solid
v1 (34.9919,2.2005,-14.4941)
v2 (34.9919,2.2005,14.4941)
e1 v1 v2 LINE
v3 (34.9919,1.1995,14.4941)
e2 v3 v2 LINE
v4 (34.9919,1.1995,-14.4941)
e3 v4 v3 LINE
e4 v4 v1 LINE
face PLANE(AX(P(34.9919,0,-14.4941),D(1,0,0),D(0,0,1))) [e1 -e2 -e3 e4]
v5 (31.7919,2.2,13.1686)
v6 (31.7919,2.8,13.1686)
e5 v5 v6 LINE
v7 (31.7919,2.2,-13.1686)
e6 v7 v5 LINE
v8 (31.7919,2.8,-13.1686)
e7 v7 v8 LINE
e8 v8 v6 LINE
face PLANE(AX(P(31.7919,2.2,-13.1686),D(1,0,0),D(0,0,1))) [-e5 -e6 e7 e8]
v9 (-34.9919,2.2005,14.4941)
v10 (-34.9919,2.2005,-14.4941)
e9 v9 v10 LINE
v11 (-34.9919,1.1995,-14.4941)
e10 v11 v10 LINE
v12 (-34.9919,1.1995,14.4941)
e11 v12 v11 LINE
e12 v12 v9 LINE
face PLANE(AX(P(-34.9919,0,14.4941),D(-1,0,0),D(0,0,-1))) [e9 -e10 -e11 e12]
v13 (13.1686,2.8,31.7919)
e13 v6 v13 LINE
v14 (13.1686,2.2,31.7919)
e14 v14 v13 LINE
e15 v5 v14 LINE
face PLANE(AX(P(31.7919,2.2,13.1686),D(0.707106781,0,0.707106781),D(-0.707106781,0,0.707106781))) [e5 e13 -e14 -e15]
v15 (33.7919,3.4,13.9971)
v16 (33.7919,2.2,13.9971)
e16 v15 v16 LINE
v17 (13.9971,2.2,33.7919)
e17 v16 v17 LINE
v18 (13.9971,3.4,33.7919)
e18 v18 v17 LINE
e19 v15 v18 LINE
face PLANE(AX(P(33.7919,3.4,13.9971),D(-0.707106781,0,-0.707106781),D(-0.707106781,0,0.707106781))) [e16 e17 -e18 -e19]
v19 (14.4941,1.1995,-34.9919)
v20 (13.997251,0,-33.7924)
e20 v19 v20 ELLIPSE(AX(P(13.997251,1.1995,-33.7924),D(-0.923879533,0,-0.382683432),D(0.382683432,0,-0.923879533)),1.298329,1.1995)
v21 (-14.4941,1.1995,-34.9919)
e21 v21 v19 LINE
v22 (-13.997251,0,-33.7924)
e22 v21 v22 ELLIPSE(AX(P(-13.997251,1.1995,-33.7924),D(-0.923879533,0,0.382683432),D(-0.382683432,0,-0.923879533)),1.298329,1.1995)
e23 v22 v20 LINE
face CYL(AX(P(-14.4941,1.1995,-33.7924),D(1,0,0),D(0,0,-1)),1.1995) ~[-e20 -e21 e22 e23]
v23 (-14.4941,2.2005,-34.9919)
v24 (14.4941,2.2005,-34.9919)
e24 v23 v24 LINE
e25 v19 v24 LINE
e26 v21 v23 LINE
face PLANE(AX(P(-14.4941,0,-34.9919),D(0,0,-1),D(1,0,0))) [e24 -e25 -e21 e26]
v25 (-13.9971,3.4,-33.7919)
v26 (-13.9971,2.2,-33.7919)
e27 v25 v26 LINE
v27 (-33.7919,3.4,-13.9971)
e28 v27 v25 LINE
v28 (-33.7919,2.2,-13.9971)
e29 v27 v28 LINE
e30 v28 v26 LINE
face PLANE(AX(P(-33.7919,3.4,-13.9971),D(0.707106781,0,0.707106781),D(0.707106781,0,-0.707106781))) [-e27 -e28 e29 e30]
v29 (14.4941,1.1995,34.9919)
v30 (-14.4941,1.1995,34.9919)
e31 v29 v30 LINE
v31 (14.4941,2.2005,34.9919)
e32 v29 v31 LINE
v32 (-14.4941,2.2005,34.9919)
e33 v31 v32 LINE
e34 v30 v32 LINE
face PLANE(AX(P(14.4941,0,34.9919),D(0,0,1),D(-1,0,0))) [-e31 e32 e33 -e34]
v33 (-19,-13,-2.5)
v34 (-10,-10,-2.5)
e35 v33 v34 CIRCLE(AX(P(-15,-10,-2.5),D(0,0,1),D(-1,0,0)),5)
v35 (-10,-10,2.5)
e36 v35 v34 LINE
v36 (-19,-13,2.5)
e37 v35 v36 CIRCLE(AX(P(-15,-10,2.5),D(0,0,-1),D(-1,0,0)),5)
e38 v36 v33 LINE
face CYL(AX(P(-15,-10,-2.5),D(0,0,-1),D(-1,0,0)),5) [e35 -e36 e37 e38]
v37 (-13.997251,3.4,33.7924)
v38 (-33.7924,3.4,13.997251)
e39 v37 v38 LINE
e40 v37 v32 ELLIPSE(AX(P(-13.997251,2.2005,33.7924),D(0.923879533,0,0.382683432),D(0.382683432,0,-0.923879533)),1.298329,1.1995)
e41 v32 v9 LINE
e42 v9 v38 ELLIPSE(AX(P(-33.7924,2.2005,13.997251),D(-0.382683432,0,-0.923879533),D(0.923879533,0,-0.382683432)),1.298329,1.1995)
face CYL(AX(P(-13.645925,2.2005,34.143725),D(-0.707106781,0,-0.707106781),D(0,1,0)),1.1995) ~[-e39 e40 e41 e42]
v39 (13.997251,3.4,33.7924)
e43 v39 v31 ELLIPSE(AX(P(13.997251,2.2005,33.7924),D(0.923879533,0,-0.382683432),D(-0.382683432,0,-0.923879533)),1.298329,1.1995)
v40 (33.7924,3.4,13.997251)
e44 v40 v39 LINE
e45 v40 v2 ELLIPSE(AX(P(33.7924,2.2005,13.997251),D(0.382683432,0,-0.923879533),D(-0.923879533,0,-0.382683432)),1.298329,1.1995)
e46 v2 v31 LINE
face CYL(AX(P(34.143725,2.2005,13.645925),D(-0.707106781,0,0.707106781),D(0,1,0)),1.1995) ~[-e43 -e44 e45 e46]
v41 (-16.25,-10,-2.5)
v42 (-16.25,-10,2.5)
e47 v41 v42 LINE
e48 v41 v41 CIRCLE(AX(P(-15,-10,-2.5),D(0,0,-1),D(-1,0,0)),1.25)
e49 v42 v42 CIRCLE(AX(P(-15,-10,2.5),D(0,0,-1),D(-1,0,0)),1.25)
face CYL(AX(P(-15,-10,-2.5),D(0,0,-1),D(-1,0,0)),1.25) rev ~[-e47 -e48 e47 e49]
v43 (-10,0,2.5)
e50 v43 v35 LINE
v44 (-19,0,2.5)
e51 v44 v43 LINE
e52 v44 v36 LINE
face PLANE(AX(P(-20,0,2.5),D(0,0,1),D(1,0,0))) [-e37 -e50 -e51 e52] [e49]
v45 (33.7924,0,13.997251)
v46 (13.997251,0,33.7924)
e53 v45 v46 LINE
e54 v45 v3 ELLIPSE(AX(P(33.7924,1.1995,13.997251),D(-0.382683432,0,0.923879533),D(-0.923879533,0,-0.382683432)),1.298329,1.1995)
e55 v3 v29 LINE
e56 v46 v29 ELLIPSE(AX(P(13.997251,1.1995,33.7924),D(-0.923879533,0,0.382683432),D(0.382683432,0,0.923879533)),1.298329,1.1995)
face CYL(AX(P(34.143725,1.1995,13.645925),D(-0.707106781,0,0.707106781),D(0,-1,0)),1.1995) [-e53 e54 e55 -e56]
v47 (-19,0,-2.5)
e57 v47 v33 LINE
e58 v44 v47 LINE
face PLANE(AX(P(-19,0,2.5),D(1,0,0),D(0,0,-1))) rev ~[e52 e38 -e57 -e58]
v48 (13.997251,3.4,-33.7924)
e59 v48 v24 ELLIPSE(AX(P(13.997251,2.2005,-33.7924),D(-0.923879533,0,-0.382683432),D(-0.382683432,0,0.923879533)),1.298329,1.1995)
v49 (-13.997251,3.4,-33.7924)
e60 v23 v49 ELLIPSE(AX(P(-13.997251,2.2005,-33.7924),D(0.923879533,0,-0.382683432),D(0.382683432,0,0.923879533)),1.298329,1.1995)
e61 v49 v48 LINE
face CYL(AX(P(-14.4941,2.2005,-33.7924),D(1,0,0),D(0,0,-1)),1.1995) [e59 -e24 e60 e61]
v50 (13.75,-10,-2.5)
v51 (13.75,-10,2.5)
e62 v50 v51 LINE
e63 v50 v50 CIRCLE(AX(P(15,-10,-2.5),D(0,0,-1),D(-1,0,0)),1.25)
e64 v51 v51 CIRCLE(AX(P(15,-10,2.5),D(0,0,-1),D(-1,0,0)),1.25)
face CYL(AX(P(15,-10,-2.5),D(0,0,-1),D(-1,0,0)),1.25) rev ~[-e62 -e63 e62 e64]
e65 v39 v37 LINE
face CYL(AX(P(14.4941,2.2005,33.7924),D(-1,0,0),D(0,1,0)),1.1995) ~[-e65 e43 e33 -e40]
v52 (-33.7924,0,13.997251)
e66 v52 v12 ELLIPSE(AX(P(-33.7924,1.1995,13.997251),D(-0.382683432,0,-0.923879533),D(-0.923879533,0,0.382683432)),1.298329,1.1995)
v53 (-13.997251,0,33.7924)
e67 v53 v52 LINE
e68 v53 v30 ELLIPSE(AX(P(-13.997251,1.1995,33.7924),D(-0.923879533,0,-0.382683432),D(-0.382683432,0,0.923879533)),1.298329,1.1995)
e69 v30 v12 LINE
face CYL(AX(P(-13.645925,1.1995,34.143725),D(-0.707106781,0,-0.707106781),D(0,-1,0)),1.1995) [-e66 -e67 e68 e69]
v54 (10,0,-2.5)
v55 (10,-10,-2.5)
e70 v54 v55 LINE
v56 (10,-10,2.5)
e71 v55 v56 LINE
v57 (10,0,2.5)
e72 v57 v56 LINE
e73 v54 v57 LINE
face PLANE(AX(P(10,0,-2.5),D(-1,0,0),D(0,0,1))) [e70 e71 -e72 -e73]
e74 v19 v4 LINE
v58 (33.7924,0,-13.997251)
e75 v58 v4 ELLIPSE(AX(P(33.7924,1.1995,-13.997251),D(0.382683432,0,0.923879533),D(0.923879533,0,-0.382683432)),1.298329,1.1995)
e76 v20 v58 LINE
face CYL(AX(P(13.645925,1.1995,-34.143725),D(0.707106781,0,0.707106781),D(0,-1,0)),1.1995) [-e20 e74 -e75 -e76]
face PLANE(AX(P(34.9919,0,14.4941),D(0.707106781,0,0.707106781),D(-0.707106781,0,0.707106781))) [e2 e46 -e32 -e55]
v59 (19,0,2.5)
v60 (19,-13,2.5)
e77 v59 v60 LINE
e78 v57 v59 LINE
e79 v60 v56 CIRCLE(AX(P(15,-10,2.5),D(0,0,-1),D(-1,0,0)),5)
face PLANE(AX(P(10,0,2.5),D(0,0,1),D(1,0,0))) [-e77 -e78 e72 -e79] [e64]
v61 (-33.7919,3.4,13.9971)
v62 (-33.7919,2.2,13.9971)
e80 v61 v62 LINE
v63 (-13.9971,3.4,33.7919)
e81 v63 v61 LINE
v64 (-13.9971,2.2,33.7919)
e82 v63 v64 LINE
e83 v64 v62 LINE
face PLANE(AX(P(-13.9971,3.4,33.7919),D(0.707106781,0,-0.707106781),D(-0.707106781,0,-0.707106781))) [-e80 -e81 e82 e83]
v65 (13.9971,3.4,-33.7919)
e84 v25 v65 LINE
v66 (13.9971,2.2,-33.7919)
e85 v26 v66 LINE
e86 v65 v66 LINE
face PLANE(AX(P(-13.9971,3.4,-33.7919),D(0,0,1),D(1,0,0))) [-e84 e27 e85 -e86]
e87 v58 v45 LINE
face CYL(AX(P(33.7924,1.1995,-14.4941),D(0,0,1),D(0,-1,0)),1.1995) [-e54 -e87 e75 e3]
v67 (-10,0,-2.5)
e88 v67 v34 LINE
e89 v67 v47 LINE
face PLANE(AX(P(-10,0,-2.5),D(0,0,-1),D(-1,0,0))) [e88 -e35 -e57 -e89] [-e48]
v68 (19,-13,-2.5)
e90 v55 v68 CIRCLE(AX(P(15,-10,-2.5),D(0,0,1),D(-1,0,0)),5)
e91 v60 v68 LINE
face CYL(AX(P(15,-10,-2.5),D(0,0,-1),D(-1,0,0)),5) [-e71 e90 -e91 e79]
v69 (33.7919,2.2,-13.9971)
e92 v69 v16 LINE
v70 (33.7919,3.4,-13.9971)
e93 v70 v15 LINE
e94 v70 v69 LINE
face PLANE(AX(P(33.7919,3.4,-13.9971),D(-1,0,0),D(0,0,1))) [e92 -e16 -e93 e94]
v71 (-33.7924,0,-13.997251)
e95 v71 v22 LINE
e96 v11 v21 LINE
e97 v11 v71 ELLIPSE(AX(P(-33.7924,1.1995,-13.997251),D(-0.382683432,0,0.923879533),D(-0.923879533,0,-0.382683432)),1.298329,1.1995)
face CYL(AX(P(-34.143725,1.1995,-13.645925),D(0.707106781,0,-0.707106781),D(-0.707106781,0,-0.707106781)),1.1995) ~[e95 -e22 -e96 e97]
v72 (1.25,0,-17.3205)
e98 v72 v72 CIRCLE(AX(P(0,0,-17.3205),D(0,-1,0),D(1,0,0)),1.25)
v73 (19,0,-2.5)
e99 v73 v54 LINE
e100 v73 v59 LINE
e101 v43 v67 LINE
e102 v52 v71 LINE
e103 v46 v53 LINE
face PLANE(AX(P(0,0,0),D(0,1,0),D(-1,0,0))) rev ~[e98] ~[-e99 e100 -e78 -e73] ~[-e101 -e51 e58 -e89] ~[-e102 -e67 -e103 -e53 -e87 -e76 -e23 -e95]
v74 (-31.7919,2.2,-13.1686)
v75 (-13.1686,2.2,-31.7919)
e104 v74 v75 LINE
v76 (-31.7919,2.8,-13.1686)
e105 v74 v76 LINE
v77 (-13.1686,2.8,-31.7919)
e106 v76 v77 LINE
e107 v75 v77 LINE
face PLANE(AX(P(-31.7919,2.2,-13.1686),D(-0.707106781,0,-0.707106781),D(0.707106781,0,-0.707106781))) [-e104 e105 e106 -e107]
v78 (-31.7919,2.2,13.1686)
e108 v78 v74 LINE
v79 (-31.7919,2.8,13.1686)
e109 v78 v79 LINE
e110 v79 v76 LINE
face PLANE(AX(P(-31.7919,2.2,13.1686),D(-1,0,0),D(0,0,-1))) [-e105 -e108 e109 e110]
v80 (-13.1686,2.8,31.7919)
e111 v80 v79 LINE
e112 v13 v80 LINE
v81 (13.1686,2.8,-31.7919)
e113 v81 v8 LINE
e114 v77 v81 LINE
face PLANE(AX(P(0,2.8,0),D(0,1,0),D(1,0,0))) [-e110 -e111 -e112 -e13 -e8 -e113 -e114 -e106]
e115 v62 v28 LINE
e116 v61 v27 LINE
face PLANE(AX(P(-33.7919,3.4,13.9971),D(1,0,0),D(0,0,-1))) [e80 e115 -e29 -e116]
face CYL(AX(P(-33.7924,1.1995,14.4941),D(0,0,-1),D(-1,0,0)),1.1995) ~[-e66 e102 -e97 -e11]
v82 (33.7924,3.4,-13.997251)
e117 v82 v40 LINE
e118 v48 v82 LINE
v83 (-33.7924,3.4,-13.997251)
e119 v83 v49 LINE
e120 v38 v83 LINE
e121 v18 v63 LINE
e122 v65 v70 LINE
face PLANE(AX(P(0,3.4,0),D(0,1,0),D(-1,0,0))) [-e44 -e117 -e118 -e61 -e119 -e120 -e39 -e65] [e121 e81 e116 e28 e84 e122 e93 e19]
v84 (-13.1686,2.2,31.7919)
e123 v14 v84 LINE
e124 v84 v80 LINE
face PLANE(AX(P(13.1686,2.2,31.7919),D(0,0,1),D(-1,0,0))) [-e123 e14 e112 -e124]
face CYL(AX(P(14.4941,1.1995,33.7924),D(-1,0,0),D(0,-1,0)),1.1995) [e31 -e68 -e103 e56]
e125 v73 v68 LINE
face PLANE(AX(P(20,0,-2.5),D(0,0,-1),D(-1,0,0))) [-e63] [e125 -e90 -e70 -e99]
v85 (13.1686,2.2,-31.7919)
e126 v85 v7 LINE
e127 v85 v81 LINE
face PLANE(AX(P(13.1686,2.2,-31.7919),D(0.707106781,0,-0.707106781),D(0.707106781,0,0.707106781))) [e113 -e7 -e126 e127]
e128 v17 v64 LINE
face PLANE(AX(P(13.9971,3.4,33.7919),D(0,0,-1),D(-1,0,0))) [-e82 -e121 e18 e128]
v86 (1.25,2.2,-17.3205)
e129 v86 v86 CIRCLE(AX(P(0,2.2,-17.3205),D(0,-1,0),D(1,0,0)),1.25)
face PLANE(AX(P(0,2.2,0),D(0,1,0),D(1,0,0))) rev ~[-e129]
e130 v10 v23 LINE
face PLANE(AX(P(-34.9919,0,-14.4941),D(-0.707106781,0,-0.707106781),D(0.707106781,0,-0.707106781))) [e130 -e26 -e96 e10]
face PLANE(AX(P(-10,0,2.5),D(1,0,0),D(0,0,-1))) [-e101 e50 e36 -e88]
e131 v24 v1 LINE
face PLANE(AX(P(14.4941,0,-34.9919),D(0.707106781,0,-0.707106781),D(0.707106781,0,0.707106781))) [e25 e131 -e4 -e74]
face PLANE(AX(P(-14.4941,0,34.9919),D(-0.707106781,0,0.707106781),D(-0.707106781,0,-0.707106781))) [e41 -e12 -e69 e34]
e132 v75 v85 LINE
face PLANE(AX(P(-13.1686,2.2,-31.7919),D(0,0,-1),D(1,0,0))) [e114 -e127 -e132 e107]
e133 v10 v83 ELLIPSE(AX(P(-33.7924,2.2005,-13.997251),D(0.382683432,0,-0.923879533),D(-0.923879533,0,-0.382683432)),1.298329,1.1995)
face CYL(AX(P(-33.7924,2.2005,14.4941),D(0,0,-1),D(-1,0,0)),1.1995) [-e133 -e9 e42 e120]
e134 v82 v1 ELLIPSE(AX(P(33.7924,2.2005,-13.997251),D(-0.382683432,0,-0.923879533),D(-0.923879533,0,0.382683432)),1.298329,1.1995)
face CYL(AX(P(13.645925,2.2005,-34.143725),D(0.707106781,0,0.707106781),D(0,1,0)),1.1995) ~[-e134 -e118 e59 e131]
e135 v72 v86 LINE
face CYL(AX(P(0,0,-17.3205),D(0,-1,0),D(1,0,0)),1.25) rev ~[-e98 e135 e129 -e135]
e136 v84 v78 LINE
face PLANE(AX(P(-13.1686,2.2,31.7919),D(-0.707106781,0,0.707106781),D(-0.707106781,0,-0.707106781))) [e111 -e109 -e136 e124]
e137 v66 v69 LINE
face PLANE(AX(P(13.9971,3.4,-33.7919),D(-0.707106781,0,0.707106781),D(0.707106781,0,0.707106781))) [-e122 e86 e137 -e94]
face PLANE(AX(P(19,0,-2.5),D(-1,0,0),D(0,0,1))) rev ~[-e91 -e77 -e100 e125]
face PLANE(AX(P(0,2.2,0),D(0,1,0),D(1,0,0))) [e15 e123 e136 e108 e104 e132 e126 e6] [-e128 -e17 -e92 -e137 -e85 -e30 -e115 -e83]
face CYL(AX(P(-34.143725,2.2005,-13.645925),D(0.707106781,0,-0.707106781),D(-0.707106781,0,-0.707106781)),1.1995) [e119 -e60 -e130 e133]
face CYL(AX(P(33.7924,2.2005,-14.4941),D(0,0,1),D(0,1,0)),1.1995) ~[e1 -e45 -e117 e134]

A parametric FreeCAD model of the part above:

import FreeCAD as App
import Part
import Sketcher

V = App.Vector


def edges_at(feature, points):
    """Names of the edges that pass closest to the given points."""
    edges = feature.Shape.Edges
    near = lambda p: min(range(len(edges)), key=lambda i: edges[i].distToShape(Part.Vertex(*p))[0])
    return sorted({f"Edge{near(p) + 1}" for p in points})


def add_polygon(sketch, points):
    """Adds a closed chain of lines whose ends are joined by coincident constraints."""
    first, n = sketch.GeometryCount, len(points)
    for a, b in zip(points, points[1:] + points[:1]):
        sketch.addGeometry(Part.LineSegment(App.Vector(*a, 0), App.Vector(*b, 0)), False)
    for i in range(n):
        sketch.addConstraint(Sketcher.Constraint("Coincident", first + i, 2, first + (i + 1) % n, 1))

doc = App.newDocument("Part")
body = doc.addObject("PartDesign::Body", "Body")

sketch1 = body.newObject("Sketcher::SketchObject", "Sketch")
sketch1.AttachmentSupport = (doc.getObject("XZ_Plane"), [""])
sketch1.MapMode = "FlatFace"
add_polygon(sketch1, [(-14, -35), (-35, -14), (-35, 14), (-14, 35), (14, 35), (35, 14), (35, -14), (14, -35)])
sketch1.addConstraint([
    Sketcher.Constraint("Vertical", 1),
    Sketcher.Constraint("Horizontal", 3),
    Sketcher.Constraint("Vertical", 5),
    Sketcher.Constraint("Horizontal", 7),
    Sketcher.Constraint("Symmetric", 0, 2, 4, 2, -1, 1),
    Sketcher.Constraint("Symmetric", 2, 2, 6, 2, -1, 1),
    Sketcher.Constraint("Perpendicular", 0, 2),
    Sketcher.Constraint("Perpendicular", 2, 4),
    Sketcher.Constraint("Perpendicular", 4, 6),
    Sketcher.Constraint("Horizontal", 1, 2, 4, 2),
    Sketcher.Constraint("Vertical", 3, 2, 6, 2),
    Sketcher.Constraint("Equal", 7, 1),
    Sketcher.Constraint("DistanceX", 3, 1, 3, 2, 28.9882),
    Sketcher.Constraint("DistanceX", 0, 2, -1, 1, 34.992),
])
pad1 = body.newObject("PartDesign::Pad", "Pad")
pad1.Profile = sketch1
pad1.Length = 3.4
pad1.Reversed = True

sketch2 = body.newObject("Sketcher::SketchObject", "Sketch001")
sketch2.AttachmentSupport = (doc.getObject("XZ_Plane"), [""])
sketch2.MapMode = "FlatFace"
sketch2.AttachmentOffset = App.Placement(V(0, 0, -3.4), App.Rotation())
add_polygon(sketch2, [(14, -34), (-14, -34), (-34, -14), (-34, 14), (-14, 34), (14, 34), (34, 14), (34, -14)])
sketch2.addConstraint([
    Sketcher.Constraint("Horizontal", 0),
    Sketcher.Constraint("Vertical", 2),
    Sketcher.Constraint("Horizontal", 4),
    Sketcher.Constraint("Vertical", 6),
    Sketcher.Constraint("Symmetric", 0, 2, 4, 2, -1, 1),
    Sketcher.Constraint("Symmetric", 1, 2, 5, 2, -1, 1),
    Sketcher.Constraint("Perpendicular", 1, 3),
    Sketcher.Constraint("Perpendicular", 5, 7),
    Sketcher.Constraint("Horizontal", 2, 2, 5, 2),
    Sketcher.Constraint("Horizontal", 1, 2, 6, 2),
    Sketcher.Constraint("Vertical", 0, 2, 3, 2),
    Sketcher.Constraint("Equal", 4, 2),
    Sketcher.Constraint("Distance", 1, 27.994),
    Sketcher.Constraint("DistanceX", 0, 2, 0, 1, 27.9942),
])
pocket1 = body.newObject("PartDesign::Pocket", "Pocket")
pocket1.Profile = sketch2
pocket1.Length = 1.2
pocket1.Reversed = True

sketch3 = body.newObject("Sketcher::SketchObject", "Sketch002")
sketch3.AttachmentSupport = (doc.getObject("XZ_Plane"), [""])
sketch3.MapMode = "FlatFace"
add_polygon(sketch3, [(20, 2), (10, 2), (10, -2), (20, -2)])
add_polygon(sketch3, [(-10, 2), (-20, 2), (-20, -2), (-10, -2)])
sketch3.addConstraint([
    Sketcher.Constraint("Horizontal", 0),
    Sketcher.Constraint("Vertical", 1),
    Sketcher.Constraint("Horizontal", 2),
    Sketcher.Constraint("Vertical", 3),
    Sketcher.Constraint("Horizontal", 4),
    Sketcher.Constraint("Vertical", 5),
    Sketcher.Constraint("Horizontal", 6),
    Sketcher.Constraint("Vertical", 7),
    Sketcher.Constraint("Symmetric", 2, 2, 4, 2, -1, 1),
    Sketcher.Constraint("Symmetric", 0, 2, 6, 2, -1, 1),
    Sketcher.Constraint("Horizontal", 3, 2, 4, 2),
    Sketcher.Constraint("DistanceX", 0, 2, 0, 1, 10.0),
    Sketcher.Constraint("DistanceY", 1, 2, 1, 1, 5.0),
    Sketcher.Constraint("DistanceX", -1, 1, 0, 2, 10.0),
])
pad2 = body.newObject("PartDesign::Pad", "Pad001")
pad2.Profile = sketch3
pad2.Length = 10

sketch4 = body.newObject("Sketcher::SketchObject", "Sketch003")
sketch4.AttachmentSupport = (doc.getObject("XY_Plane"), [""])
sketch4.MapMode = "FlatFace"
sketch4.AttachmentOffset = App.Placement(V(0, 0, -2.5), App.Rotation())
sketch4.addGeometry([
    Part.Circle(V(-15, -10, 0), V(0, 0, 1), 5),
    Part.Circle(V(15, -10, 0), V(0, 0, 1), 5),
], False)
sketch4.addConstraint([
    Sketcher.Constraint("Equal", 0, 1),
    Sketcher.Constraint("Symmetric", 0, 3, 1, 3, -2),
    Sketcher.Constraint("Diameter", 0, 10.0),
    Sketcher.Constraint("DistanceY", 0, 3, -1, 1, 10.0),
    Sketcher.Constraint("DistanceX", 0, 3, -1, 1, 15.0),
])
pad3 = body.newObject("PartDesign::Pad", "Pad002")
pad3.Profile = sketch4
pad3.Length = 5

sketch5 = body.newObject("Sketcher::SketchObject", "Sketch004")
sketch5.AttachmentSupport = (doc.getObject("XY_Plane"), [""])
sketch5.MapMode = "FlatFace"
sketch5.AttachmentOffset = App.Placement(V(0, 0, -2.5), App.Rotation())
sketch5.addGeometry([
    Part.Circle(V(-15, -10, 0), V(0, 0, 1), 1.2),
    Part.Circle(V(15, -10, 0), V(0, 0, 1), 1.2),
], False)
sketch5.addConstraint([
    Sketcher.Constraint("Equal", 0, 1),
    Sketcher.Constraint("Symmetric", 0, 3, 1, 3, -2),
    Sketcher.Constraint("Diameter", 0, 2.5),
    Sketcher.Constraint("DistanceY", 0, 3, -1, 1, 10.0),
    Sketcher.Constraint("DistanceX", 0, 3, 1, 3, 30.0),
])
pocket2 = body.newObject("PartDesign::Pocket", "Pocket001")
pocket2.Profile = sketch5
pocket2.Length = 5
pocket2.Reversed = True

sketch6 = body.newObject("Sketcher::SketchObject", "Sketch005")
sketch6.AttachmentSupport = (doc.getObject("XZ_Plane"), [""])
sketch6.MapMode = "FlatFace"
sketch6.addGeometry(Part.Circle(V(0, -17.3, 0), V(0, 0, 1), 1.2), False)
sketch6.addConstraint([
    Sketcher.Constraint("PointOnObject", 0, 3, -2),
    Sketcher.Constraint("Diameter", 0, 2.5),
    Sketcher.Constraint("DistanceY", 0, 3, -1, 1, 17.3205),
])
pocket3 = body.newObject("PartDesign::Pocket", "Pocket002")
pocket3.Profile = sketch6
pocket3.Length = 5

sketch7 = body.newObject("Sketcher::SketchObject", "Sketch006")
sketch7.AttachmentSupport = (doc.getObject("XZ_Plane"), [""])
sketch7.MapMode = "FlatFace"
sketch7.AttachmentOffset = App.Placement(V(0, 0, -2.2), App.Rotation())
add_polygon(sketch7, [(13, -32), (-13, -32), (-32, -13), (-32, 13), (-13, 32), (13, 32), (32, 13), (32, -13)])
sketch7.addConstraint([
    Sketcher.Constraint("Horizontal", 0),
    Sketcher.Constraint("Vertical", 2),
    Sketcher.Constraint("Horizontal", 4),
    Sketcher.Constraint("Vertical", 6),
    Sketcher.Constraint("Symmetric", 0, 2, 4, 2, -1, 1),
    Sketcher.Constraint("Symmetric", 1, 2, 5, 2, -1, 1),
    Sketcher.Constraint("Perpendicular", 1, 3),
    Sketcher.Constraint("Perpendicular", 5, 7),
    Sketcher.Constraint("Horizontal", 2, 2, 5, 2),
    Sketcher.Constraint("Horizontal", 1, 2, 6, 2),
    Sketcher.Constraint("Vertical", 0, 2, 3, 2),
    Sketcher.Constraint("Equal", 4, 2),
    Sketcher.Constraint("DistanceX", 0, 2, 0, 1, 26.3372),
    Sketcher.Constraint("DistanceY", 0, 2, -1, 1, 31.792),
])
pad4 = body.newObject("PartDesign::Pad", "Pad003")
pad4.Profile = sketch7
pad4.Length = 0.6
pad4.Reversed = True
doc.recompute()

fillet = body.newObject("PartDesign::Fillet", "Fillet")
fillet.Base = (pad4, edges_at(pad4, [
    (-34.992, 3.4, 0),
    (-24.743, 3.4, 24.743),
    (0, 3.4, 34.992),
    (24.743, 3.4, 24.743),
    (34.992, 3.4, 0),
    (24.743, 3.4, -24.743),
    (0, 3.4, -34.992),
    (-24.743, 3.4, -24.743),
    (24.743, 0, 24.743),
    (0, 0, 34.992),
    (-24.743, 0, 24.743),
    (-34.992, 0, 0),
    (-24.743, 0, -24.743),
    (0, 0, -34.992),
    (24.743, 0, -24.743),
    (34.992, 0, 0),
]))
fillet.Radius = 1.2

sketch8 = body.newObject("Sketcher::SketchObject", "Sketch007")
sketch8.AttachmentSupport = (doc.getObject("XZ_Plane"), [""])
sketch8.MapMode = "FlatFace"
add_polygon(sketch8, [(-19, 2.5), (-20, 2.5), (-20, -2.5), (-19, -2.5)])
add_polygon(sketch8, [(19, -2.5), (20, -2.5), (20, 2.5), (19, 2.5)])
sketch8.addConstraint([
    Sketcher.Constraint("Horizontal", 0),
    Sketcher.Constraint("Vertical", 1),
    Sketcher.Constraint("Horizontal", 2),
    Sketcher.Constraint("Vertical", 3),
    Sketcher.Constraint("Horizontal", 4),
    Sketcher.Constraint("Vertical", 5),
    Sketcher.Constraint("Horizontal", 6),
    Sketcher.Constraint("Vertical", 7),
    Sketcher.Constraint("Symmetric", 0, 2, 4, 2, -1, 1),
    Sketcher.Constraint("Symmetric", 2, 2, 6, 2, -1, 1),
    Sketcher.Constraint("Horizontal", 2, 2, 4, 2),
    Sketcher.Constraint("DistanceX", 0, 2, 0, 1, 1.0),
    Sketcher.Constraint("DistanceY", 1, 2, 1, 1, 5.0),
    Sketcher.Constraint("DistanceX", 0, 2, -1, 1, 20.0),
])
pocket4 = body.newObject("PartDesign::Pocket", "Pocket003")
pocket4.Profile = sketch8
pocket4.Length = 15
pocket4.Reversed = True

doc.recompute()
